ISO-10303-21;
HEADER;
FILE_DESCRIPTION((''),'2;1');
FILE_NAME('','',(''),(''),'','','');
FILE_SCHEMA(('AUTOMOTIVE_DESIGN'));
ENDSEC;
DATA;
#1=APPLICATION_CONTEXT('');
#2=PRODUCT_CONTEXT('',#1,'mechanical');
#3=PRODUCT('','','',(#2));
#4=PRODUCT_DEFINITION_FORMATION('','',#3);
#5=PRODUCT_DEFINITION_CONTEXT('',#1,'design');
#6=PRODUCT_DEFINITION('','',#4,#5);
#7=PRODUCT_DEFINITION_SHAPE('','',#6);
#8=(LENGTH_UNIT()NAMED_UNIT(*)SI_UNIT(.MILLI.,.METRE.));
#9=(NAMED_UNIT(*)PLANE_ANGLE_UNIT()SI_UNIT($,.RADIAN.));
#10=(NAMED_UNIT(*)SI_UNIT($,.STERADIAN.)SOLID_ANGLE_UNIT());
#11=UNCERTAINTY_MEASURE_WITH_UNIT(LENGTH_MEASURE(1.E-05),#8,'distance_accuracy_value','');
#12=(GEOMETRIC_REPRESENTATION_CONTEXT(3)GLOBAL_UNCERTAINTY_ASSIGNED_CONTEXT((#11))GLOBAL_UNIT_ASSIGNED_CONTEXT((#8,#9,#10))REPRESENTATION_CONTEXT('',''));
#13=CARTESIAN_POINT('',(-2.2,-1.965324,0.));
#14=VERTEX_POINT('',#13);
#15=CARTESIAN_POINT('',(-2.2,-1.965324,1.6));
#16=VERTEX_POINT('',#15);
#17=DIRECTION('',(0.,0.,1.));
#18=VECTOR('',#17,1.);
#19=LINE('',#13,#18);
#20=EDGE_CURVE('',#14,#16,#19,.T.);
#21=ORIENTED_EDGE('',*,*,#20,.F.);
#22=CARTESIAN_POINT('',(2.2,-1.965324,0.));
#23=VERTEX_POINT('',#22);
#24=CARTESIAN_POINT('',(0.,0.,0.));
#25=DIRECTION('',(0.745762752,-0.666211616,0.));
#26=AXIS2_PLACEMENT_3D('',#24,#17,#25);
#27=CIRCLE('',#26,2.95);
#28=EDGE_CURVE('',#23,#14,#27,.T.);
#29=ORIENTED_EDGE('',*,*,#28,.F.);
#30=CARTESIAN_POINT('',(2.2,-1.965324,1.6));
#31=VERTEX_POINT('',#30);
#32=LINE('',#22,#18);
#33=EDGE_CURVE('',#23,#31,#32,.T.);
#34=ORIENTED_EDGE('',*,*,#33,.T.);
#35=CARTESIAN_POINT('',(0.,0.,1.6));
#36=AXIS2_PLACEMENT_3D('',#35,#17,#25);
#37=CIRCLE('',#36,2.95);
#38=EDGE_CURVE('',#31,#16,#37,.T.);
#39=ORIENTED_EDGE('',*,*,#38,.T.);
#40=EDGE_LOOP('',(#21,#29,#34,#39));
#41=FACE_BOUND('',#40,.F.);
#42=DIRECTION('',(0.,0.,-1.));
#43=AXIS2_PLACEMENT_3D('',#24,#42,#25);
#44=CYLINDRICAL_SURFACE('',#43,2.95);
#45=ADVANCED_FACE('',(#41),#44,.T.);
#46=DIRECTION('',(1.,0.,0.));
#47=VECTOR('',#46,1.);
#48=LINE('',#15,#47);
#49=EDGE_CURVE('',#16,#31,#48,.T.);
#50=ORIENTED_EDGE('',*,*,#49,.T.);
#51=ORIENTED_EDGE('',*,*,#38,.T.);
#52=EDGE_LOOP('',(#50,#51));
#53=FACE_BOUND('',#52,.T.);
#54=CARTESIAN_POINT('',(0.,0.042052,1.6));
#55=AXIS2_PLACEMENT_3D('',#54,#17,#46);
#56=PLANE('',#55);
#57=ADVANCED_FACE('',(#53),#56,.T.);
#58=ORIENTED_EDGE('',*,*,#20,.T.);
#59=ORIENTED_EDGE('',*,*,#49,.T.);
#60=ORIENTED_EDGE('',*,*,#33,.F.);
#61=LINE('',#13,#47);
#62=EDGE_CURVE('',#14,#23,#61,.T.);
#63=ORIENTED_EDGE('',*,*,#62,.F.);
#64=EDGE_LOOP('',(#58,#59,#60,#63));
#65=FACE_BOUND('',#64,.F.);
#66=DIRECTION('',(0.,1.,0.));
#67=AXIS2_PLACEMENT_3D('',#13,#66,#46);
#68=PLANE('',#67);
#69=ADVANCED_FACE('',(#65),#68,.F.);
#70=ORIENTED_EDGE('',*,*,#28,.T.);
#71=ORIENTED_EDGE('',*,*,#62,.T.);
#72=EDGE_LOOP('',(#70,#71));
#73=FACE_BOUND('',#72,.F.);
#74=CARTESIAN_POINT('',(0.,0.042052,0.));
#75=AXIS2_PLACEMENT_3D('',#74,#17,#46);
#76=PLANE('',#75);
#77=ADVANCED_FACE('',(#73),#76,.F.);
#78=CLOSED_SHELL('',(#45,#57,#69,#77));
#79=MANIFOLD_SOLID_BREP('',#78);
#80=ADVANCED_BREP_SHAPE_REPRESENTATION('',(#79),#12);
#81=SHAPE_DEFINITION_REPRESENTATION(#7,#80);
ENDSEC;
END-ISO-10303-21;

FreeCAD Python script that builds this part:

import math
import FreeCAD as App
import Part
import Sketcher

V = App.Vector

doc = App.newDocument("Part")
body = doc.addObject("PartDesign::Body", "Body")

# Sketch on XY plane
sketch1 = body.newObject("Sketcher::SketchObject", "Sketch")
sketch1.AttachmentSupport = (doc.getObject("XY_Plane"), [""])
sketch1.MapMode = "FlatFace"
sketch1.addGeometry([
    Part.ArcOfCircle(Part.Circle(V(0, 0, 0), V(0, 0, 1), 2.9), math.radians(-42), math.radians(222)),
    Part.LineSegment(V(-2.2, -2, 0), V(2.2, -2, 0)),
], False)
sketch1.addConstraint([
    Sketcher.Constraint("Coincident", 0, 1, 1, 2),
    Sketcher.Constraint("Coincident", 1, 1, 0, 2),
    Sketcher.Constraint("Horizontal", 1),
    Sketcher.Constraint("Coincident", 0, 3, -1, 1),
    Sketcher.Constraint("Radius", 0, 2.95),
    Sketcher.Constraint("DistanceX", 1, 1, 1, 2, 4.4),
])
pad1 = body.newObject("PartDesign::Pad", "Pad")
pad1.Profile = sketch1
pad1.Length = 1.6

doc.recompute()
